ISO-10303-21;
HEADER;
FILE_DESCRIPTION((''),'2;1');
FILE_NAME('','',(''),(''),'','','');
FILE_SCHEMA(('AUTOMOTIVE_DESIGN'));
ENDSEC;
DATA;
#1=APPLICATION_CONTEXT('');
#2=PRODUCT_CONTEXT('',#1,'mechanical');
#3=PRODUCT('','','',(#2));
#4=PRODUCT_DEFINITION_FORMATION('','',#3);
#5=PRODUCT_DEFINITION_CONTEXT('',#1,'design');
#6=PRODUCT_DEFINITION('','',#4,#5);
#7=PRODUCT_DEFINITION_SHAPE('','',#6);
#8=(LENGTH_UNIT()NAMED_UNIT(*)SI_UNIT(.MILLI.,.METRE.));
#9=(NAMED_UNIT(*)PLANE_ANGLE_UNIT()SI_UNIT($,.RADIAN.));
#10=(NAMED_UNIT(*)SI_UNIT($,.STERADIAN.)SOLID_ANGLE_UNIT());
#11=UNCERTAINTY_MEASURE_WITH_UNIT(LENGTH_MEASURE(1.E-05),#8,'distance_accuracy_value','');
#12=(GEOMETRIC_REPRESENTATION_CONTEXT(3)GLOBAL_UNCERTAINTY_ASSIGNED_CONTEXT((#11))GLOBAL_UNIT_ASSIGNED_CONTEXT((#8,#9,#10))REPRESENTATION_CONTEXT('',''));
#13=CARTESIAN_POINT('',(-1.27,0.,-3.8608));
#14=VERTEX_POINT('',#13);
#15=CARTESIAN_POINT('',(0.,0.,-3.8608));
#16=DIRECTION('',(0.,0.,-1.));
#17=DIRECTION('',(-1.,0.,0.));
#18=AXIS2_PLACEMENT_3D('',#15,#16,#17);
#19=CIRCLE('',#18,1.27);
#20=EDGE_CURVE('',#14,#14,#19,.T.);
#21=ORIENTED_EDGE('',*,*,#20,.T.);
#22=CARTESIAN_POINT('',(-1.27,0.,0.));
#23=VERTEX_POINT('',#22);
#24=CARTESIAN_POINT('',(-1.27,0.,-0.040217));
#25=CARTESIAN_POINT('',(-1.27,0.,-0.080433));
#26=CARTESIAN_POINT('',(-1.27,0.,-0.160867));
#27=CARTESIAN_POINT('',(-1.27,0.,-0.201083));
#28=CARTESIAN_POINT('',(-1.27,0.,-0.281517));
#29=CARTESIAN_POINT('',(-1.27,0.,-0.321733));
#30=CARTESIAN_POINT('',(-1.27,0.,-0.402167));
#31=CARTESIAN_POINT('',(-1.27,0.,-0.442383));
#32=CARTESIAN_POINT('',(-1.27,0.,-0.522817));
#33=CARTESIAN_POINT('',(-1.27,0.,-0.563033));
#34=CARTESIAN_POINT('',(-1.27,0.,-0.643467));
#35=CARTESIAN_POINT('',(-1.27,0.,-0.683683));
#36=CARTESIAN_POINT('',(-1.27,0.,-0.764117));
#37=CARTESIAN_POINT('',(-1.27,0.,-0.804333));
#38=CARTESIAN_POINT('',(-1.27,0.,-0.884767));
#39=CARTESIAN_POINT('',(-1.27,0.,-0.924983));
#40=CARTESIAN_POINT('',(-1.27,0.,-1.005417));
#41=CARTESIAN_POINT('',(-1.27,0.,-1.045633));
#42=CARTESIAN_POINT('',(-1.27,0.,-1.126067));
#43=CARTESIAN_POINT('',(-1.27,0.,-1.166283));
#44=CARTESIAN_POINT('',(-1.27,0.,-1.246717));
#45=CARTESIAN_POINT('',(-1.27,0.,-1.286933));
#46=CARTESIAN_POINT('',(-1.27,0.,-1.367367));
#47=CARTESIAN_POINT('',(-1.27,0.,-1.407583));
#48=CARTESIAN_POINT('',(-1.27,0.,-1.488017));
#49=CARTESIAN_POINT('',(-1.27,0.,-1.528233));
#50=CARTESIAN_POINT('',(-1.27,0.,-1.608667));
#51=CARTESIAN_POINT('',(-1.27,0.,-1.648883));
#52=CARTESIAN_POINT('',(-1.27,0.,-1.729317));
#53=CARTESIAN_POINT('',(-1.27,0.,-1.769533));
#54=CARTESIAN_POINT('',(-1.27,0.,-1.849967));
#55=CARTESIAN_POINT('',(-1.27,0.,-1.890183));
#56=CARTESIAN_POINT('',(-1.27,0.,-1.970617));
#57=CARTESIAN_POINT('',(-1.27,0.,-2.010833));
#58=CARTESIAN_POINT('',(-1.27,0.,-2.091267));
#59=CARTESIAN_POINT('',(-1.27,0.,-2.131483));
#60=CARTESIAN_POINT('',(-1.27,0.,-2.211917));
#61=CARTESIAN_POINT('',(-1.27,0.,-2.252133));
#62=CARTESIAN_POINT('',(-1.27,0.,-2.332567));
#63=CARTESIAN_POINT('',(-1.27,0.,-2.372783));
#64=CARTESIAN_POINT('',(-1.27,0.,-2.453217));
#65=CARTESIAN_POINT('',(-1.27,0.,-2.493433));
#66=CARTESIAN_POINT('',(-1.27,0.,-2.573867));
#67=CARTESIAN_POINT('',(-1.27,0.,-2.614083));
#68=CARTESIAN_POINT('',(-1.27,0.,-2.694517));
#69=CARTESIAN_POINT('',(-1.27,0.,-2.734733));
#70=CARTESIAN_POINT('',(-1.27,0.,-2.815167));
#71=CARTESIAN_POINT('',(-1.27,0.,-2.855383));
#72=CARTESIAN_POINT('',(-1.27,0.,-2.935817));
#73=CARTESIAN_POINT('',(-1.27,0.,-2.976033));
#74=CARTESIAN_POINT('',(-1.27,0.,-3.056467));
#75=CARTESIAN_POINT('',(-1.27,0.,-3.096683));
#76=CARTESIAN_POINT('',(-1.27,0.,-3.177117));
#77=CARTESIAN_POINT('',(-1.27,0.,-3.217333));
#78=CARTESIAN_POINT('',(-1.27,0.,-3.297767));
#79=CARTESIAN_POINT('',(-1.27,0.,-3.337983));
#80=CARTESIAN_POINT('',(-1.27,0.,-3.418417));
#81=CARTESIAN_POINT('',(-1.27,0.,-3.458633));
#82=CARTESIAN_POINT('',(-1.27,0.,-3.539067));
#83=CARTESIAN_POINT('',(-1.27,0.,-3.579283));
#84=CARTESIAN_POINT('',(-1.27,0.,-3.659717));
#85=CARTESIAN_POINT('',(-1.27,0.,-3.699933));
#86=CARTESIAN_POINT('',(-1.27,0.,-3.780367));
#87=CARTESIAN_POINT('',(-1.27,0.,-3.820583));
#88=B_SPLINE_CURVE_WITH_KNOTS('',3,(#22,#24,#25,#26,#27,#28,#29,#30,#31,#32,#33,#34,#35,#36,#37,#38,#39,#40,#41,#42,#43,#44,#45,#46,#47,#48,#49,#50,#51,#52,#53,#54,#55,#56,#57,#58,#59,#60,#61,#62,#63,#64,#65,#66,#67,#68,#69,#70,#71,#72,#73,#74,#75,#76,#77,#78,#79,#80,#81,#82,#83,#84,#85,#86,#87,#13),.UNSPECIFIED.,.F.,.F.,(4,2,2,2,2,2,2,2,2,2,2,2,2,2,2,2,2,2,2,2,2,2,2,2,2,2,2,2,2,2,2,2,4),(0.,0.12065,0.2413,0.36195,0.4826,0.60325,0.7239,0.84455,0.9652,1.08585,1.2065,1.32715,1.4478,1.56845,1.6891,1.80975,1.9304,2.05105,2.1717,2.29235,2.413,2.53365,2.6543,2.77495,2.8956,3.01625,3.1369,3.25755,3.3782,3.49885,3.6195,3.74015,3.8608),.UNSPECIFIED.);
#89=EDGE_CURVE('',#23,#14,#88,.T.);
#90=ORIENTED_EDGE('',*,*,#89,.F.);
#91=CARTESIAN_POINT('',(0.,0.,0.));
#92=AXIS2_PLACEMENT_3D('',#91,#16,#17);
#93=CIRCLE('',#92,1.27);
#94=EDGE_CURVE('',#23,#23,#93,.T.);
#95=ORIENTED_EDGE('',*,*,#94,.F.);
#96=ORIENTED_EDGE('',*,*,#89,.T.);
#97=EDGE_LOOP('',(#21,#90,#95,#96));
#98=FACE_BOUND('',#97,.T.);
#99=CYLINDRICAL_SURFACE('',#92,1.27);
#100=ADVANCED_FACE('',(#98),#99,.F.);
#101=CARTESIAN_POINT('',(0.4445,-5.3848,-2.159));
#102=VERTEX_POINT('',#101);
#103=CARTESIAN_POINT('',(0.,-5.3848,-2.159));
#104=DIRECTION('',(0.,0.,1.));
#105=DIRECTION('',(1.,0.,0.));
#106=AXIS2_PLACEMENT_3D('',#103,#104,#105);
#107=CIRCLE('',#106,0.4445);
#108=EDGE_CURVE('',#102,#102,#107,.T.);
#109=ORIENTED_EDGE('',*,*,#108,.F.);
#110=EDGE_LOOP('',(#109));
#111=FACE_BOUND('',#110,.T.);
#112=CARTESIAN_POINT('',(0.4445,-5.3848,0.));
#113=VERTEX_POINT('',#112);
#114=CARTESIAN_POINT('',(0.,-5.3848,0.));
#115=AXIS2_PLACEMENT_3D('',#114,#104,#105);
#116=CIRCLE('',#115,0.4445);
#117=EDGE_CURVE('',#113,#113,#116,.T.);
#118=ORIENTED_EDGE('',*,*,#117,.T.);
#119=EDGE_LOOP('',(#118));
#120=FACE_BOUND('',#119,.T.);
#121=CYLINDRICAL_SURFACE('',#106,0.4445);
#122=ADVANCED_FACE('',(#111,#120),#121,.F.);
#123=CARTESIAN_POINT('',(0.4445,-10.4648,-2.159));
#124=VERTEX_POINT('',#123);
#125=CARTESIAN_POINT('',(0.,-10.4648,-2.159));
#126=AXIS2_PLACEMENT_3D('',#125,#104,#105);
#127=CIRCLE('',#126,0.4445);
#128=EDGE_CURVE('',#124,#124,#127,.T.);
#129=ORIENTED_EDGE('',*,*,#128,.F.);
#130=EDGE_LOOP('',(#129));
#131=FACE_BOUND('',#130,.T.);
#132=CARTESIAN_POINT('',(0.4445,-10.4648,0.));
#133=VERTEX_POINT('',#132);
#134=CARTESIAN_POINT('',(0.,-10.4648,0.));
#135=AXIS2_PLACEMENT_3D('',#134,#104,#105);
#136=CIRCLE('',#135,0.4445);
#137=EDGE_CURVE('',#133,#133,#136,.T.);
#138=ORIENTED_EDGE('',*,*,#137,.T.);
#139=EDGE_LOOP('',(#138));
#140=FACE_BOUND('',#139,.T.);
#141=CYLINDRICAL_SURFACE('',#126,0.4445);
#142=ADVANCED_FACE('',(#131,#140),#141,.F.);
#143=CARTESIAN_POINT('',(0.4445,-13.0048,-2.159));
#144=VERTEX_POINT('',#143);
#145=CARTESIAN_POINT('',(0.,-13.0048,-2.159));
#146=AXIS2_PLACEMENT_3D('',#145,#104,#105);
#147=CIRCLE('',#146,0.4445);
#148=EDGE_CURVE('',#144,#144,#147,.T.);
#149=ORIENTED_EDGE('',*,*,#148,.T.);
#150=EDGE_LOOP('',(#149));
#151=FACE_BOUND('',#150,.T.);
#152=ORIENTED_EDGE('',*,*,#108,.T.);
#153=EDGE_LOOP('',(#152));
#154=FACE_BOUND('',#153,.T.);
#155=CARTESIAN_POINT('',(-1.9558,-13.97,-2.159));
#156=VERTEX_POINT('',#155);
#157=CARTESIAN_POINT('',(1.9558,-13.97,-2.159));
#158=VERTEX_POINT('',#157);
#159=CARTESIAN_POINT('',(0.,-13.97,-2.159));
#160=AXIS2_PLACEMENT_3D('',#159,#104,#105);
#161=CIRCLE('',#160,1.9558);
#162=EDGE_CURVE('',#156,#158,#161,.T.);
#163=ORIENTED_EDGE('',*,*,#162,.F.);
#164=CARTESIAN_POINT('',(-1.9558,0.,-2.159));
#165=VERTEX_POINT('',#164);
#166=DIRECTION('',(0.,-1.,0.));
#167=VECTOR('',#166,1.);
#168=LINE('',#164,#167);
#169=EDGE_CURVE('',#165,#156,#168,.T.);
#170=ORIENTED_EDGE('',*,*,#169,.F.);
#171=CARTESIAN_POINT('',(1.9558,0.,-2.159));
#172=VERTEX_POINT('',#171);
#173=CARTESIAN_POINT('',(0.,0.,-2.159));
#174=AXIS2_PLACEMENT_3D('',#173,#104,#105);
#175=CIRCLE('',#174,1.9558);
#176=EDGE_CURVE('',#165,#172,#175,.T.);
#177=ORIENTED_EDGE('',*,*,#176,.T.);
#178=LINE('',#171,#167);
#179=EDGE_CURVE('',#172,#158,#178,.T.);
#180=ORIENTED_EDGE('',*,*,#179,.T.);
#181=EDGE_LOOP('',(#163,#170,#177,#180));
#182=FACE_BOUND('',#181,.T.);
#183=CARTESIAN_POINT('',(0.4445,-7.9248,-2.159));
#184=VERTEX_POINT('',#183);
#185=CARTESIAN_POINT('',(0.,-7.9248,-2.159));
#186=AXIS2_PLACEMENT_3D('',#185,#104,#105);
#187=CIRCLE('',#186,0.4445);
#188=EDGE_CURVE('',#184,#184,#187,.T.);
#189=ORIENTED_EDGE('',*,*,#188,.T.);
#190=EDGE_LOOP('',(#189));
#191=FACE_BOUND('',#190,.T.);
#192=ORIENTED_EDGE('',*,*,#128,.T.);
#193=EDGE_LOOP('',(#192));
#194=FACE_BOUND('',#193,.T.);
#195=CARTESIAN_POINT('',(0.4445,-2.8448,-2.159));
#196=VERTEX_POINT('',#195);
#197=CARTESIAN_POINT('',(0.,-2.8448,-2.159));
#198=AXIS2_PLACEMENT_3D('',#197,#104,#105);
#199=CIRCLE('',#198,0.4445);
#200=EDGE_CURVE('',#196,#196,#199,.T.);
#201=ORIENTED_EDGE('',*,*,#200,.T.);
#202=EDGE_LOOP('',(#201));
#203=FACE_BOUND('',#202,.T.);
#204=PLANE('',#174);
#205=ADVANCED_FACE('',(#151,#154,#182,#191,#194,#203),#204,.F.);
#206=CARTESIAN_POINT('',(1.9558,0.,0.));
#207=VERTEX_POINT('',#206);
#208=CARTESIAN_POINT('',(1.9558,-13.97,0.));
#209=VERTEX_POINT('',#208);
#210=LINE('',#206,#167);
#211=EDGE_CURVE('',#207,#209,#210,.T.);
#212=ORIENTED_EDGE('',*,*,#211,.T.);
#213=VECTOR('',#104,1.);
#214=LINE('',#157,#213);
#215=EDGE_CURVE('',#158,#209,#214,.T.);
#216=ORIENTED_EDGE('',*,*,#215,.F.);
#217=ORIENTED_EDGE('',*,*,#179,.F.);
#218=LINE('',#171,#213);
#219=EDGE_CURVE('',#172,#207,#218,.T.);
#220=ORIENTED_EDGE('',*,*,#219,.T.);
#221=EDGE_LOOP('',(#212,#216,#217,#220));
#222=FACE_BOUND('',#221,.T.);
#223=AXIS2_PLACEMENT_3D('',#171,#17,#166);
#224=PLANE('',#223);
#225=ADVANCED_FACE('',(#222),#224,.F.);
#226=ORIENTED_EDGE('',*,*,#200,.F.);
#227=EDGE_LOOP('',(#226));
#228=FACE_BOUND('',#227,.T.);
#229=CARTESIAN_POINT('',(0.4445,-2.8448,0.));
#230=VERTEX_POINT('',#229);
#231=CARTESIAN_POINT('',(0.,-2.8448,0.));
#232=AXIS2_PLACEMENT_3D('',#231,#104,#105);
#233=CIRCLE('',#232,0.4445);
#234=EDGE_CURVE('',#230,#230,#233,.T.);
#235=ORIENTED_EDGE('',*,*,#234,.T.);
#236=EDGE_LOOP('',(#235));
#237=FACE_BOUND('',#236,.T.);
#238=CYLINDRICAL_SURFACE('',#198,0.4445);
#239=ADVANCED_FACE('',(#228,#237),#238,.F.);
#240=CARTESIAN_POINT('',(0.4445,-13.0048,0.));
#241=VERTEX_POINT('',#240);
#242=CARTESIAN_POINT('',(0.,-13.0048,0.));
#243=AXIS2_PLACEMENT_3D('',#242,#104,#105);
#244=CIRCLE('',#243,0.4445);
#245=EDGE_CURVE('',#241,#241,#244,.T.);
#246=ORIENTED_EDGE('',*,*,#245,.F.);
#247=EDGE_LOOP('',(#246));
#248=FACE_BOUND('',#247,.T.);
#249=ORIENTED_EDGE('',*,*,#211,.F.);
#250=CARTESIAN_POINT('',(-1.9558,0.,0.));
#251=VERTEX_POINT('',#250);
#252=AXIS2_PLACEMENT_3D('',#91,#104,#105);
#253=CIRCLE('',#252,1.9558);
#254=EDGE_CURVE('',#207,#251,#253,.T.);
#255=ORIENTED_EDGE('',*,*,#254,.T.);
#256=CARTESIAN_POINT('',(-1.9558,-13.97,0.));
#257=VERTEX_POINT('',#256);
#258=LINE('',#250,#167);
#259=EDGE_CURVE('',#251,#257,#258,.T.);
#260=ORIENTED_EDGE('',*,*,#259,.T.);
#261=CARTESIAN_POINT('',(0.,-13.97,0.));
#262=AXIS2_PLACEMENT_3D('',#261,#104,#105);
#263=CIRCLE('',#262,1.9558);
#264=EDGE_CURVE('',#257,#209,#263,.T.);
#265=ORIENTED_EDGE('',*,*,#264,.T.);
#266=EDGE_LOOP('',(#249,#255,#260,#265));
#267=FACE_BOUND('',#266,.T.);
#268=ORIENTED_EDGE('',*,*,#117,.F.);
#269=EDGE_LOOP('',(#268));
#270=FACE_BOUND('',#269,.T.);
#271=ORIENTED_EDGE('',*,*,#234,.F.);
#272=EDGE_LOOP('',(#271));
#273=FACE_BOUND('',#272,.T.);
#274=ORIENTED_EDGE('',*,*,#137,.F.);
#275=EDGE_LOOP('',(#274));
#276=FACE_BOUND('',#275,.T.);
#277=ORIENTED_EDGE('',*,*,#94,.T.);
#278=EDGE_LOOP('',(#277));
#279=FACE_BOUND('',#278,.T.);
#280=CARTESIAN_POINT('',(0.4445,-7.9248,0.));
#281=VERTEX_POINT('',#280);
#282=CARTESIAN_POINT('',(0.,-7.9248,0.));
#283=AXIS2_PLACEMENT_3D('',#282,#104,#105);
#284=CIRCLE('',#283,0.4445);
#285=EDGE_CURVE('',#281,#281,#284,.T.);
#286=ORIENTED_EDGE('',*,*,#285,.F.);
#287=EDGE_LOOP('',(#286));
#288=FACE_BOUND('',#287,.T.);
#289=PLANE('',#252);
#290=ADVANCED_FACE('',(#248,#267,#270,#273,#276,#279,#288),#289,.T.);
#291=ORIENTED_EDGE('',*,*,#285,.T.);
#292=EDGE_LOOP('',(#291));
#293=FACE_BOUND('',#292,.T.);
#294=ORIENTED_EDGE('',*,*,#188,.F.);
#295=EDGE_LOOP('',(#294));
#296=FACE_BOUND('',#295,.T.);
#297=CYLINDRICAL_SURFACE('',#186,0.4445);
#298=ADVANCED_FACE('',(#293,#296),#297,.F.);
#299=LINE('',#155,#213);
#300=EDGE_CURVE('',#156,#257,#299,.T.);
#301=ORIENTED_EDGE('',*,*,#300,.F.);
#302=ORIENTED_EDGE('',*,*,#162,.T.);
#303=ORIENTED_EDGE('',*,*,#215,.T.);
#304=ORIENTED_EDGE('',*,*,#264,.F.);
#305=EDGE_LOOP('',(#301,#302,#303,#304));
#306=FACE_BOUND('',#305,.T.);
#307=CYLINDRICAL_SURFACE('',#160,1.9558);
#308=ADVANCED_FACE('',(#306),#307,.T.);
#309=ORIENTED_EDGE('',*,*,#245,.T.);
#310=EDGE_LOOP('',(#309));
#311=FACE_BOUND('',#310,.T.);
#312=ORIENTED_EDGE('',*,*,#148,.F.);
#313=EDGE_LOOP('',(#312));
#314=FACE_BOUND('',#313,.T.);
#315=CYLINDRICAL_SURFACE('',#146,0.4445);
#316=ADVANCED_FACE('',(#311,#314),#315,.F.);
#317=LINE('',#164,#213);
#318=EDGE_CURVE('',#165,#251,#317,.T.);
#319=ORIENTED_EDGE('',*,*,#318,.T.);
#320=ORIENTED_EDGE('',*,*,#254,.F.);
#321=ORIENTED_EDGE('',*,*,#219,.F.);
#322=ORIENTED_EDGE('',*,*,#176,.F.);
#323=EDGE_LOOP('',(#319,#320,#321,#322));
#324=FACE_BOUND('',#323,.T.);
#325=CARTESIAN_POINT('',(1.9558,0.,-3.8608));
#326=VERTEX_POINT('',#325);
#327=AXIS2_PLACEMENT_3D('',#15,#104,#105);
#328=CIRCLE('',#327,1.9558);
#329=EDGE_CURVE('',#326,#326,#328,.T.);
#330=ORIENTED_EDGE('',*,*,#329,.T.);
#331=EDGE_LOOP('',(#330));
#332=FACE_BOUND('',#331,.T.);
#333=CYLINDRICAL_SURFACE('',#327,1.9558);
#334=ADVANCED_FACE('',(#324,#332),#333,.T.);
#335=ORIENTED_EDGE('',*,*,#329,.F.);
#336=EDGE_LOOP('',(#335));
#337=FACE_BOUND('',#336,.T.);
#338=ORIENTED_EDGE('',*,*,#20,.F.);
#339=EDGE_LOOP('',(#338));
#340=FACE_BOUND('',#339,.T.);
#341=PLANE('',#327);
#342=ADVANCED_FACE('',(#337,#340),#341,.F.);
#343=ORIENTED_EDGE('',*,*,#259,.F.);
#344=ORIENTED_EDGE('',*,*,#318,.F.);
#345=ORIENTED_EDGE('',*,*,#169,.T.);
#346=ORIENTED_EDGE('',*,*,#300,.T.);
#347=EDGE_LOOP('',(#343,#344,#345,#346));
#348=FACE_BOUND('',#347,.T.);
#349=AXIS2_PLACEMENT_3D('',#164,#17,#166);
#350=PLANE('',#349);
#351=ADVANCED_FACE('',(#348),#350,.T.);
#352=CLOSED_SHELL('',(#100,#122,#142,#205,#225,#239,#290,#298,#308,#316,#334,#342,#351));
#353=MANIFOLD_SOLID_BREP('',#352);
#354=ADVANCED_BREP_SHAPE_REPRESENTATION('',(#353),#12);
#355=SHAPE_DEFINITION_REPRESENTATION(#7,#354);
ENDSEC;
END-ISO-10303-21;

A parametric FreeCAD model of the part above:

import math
import FreeCAD as App
import Part
import Sketcher
from FreeCAD import Vector
Q = App.Units.Quantity

doc = App.newDocument("Part")
body = doc.addObject("PartDesign::Body", "Body")

# Sketch on XY plane
sketch1 = doc.addObject("Sketcher::SketchObject", "Sketch")
body.addObject(sketch1)
sketch1.AttachmentSupport = (doc.XY_Plane, [""])
sketch1.MapMode = "FlatFace"
sketch1.addGeometry(Part.LineSegment(Vector(1.9558, -13.97, 0), Vector(1.9558, 0, 0)), False)
sketch1.addGeometry(Part.ArcOfCircle(Part.Circle(Vector(0, 0, 0), Vector(0, 0, 1), 1.9558), math.radians(180), math.radians(360)), False)
sketch1.addGeometry(Part.LineSegment(Vector(-1.9558, 0, 0), Vector(-1.9558, -13.97, 0)), False)
sketch1.addGeometry(Part.ArcOfCircle(Part.Circle(Vector(0, -13.97, 0), Vector(0, 0, 1), 1.9558), math.radians(180), math.radians(360)), False)
sketch1.addGeometry(Part.Circle(Vector(0, -13.0048, 0), Vector(0, 0, 1), 0.4445), False)
sketch1.addGeometry(Part.Circle(Vector(0, -10.4648, 0), Vector(0, 0, 1), 0.4445), False)
sketch1.addGeometry(Part.Circle(Vector(0, -7.9248, 0), Vector(0, 0, 1), 0.4445), False)
sketch1.addGeometry(Part.Circle(Vector(0, -5.3848, 0), Vector(0, 0, 1), 0.4445), False)
sketch1.addGeometry(Part.Circle(Vector(0, -2.8448, 0), Vector(0, 0, 1), 0.4445), False)
sketch1.addConstraint(Sketcher.Constraint("Tangent", 0, 2, 1, 2))
sketch1.addConstraint(Sketcher.Constraint("Tangent", 1, 1, 2, 1))
sketch1.addConstraint(Sketcher.Constraint("Tangent", 2, 2, 3, 1))
sketch1.addConstraint(Sketcher.Constraint("Tangent", 3, 2, 0, 1))
sketch1.addConstraint(Sketcher.Constraint("Vertical", 0))
sketch1.addConstraint(Sketcher.Constraint("Vertical", 2))
sketch1.addConstraint(Sketcher.Constraint("Coincident", 1, 3, -1, 1))
sketch1.addConstraint(Sketcher.Constraint("Equal", 4, 5))
sketch1.addConstraint(Sketcher.Constraint("Equal", 5, 6))
sketch1.addConstraint(Sketcher.Constraint("Equal", 6, 7))
sketch1.addConstraint(Sketcher.Constraint("Equal", 7, 8))
sketch1.addConstraint(Sketcher.Constraint("PointOnObject", 4, 3, -2))
sketch1.addConstraint(Sketcher.Constraint("PointOnObject", 5, 3, -2))
sketch1.addConstraint(Sketcher.Constraint("PointOnObject", 6, 3, -2))
sketch1.addConstraint(Sketcher.Constraint("PointOnObject", 7, 3, -2))
sketch1.addConstraint(Sketcher.Constraint("PointOnObject", 8, 3, -2))
sketch1.addConstraint(Sketcher.Constraint("Diameter", 4, Q("0.035 in")))
sketch1.addConstraint(Sketcher.Constraint("Radius", 1, Q("0.077 in")))
sketch1.addConstraint(Sketcher.Constraint("DistanceY", 0, 1, 0, 2, Q("0.55 in")))
sketch1.addConstraint(Sketcher.Constraint("DistanceY", 4, 3, 5, 3, Q("0.1 in")))
sketch1.addConstraint(Sketcher.Constraint("DistanceY", 5, 3, 6, 3, Q("0.1 in")))
sketch1.addConstraint(Sketcher.Constraint("DistanceY", 6, 3, 7, 3, Q("0.1 in")))
sketch1.addConstraint(Sketcher.Constraint("DistanceY", 7, 3, 8, 3, Q("0.1 in")))
sketch1.addConstraint(Sketcher.Constraint("DistanceY", 4, 3, -1, 1, Q("0.512 in")))
pad1 = doc.addObject("PartDesign::Pad", "Pad")
body.addObject(pad1)
pad1.Profile = sketch1
pad1.Length = Q("0.085 in")
pad1.Reversed = True

# Sketch on XY plane
sketch2 = doc.addObject("Sketcher::SketchObject", "Sketch001")
body.addObject(sketch2)
sketch2.AttachmentSupport = (doc.XY_Plane, [""])
sketch2.MapMode = "FlatFace"
sketch2.addGeometry(Part.Circle(Vector(0, 0, 0), Vector(0, 0, 1), 1.9558), False)
sketch2.addConstraint(Sketcher.Constraint("Coincident", 0, 3, -1, 1))
sketch2.addConstraint(Sketcher.Constraint("Diameter", 0, Q("0.154 in")))
pad2 = doc.addObject("PartDesign::Pad", "Pad001")
body.addObject(pad2)
pad2.Profile = sketch2
pad2.Length = Q("0.152 in")
pad2.Reversed = True

# Sketch on XY plane
sketch3 = doc.addObject("Sketcher::SketchObject", "Sketch002")
body.addObject(sketch3)
sketch3.AttachmentSupport = (doc.XY_Plane, [""])
sketch3.MapMode = "FlatFace"
sketch3.AttachmentOffset = App.Placement(Vector(0, 0, -0.152 * 25.4), App.Rotation())
sketch3.addGeometry(Part.Circle(Vector(0, 0, 0), Vector(0, 0, 1), 1.27), False)
sketch3.addConstraint(Sketcher.Constraint("Coincident", 0, 3, -1, 1))
sketch3.addConstraint(Sketcher.Constraint("Diameter", 0, Q("0.1 in")))
pocket1 = doc.addObject("PartDesign::Pocket", "Pocket")
body.addObject(pocket1)
pocket1.Profile = sketch3
pocket1.Type = "ThroughAll"
pocket1.Reversed = True

doc.recompute()
